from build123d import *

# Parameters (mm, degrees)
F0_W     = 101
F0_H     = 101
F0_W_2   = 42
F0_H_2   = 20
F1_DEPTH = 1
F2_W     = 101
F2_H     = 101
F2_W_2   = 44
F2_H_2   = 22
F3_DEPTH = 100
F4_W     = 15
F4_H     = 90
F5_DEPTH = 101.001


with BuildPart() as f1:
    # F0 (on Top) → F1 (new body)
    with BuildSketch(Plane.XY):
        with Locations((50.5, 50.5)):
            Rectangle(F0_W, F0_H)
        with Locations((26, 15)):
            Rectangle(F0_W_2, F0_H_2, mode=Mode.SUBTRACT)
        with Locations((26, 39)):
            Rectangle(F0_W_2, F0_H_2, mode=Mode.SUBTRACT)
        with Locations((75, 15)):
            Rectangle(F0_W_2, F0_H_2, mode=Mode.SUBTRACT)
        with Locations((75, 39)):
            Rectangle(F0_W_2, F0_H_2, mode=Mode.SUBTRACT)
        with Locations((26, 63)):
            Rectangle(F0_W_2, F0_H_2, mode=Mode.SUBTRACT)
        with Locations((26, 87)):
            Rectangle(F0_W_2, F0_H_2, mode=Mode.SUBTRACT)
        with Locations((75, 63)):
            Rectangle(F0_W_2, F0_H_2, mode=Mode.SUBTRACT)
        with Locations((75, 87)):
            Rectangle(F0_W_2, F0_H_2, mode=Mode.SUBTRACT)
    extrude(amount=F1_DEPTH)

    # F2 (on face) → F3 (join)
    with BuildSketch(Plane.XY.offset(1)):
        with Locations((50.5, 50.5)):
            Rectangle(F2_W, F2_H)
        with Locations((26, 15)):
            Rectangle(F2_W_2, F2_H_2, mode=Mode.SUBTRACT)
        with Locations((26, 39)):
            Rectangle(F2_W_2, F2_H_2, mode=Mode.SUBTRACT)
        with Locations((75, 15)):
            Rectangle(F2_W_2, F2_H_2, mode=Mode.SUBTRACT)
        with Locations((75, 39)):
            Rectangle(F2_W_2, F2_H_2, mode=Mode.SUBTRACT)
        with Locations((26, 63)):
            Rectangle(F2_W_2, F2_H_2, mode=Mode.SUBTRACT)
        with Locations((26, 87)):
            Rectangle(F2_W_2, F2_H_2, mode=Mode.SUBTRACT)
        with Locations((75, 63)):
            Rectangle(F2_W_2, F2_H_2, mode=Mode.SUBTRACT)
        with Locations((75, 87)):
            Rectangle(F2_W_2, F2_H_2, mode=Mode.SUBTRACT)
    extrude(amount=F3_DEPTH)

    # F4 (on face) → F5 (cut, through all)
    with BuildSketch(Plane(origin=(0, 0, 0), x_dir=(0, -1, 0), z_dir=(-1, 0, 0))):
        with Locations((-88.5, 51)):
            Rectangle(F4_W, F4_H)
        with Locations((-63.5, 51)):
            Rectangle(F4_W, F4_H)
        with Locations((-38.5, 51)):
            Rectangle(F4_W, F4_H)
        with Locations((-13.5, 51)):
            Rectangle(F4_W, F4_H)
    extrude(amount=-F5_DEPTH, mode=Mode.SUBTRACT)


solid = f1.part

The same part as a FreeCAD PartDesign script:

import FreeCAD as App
import Part
import Sketcher
from FreeCAD import Vector


def add_polygon(sketch, points):
    """Adds a closed chain of lines whose ends are joined by coincident constraints."""
    first, n = sketch.GeometryCount, len(points)
    for a, b in zip(points, points[1:] + points[:1]):
        sketch.addGeometry(Part.LineSegment(App.Vector(*a, 0), App.Vector(*b, 0)), False)
    for i in range(n):
        sketch.addConstraint(Sketcher.Constraint("Coincident", first + i, 2, first + (i + 1) % n, 1))

doc = App.newDocument("Part")
body = doc.addObject("PartDesign::Body", "Body")

# Sketch on XY plane
sketch1 = doc.addObject("Sketcher::SketchObject", "Sketch")
body.addObject(sketch1)
sketch1.AttachmentSupport = (doc.XY_Plane, [""])
sketch1.MapMode = "FlatFace"
add_polygon(sketch1, [(0, 101), (0, 0), (101, 0), (101, 101)])  # lines 0-3
add_polygon(sketch1, [(47, 5), (5, 5), (5, 25), (47, 25)])  # lines 4-7
add_polygon(sketch1, [(47, 29), (5, 29), (5, 49), (47, 49)])  # lines 8-11
add_polygon(sketch1, [(96, 5), (54, 5), (54, 25), (96, 25)])  # lines 12-15
add_polygon(sketch1, [(96, 29), (54, 29), (54, 49), (96, 49)])  # lines 16-19
add_polygon(sketch1, [(47, 53), (5, 53), (5, 73), (47, 73)])  # lines 20-23
add_polygon(sketch1, [(47, 77), (5, 77), (5, 97), (47, 97)])  # lines 24-27
add_polygon(sketch1, [(96, 53), (54, 53), (54, 73), (96, 73)])  # lines 28-31
add_polygon(sketch1, [(96, 77), (54, 77), (54, 97), (96, 97)])  # lines 32-35
sketch1.addConstraint(Sketcher.Constraint("Vertical", 0))
sketch1.addConstraint(Sketcher.Constraint("Horizontal", 1))
sketch1.addConstraint(Sketcher.Constraint("Vertical", 2))
sketch1.addConstraint(Sketcher.Constraint("Horizontal", 3))
sketch1.addConstraint(Sketcher.Constraint("Horizontal", 4))
sketch1.addConstraint(Sketcher.Constraint("Vertical", 5))
sketch1.addConstraint(Sketcher.Constraint("Horizontal", 6))
sketch1.addConstraint(Sketcher.Constraint("Vertical", 7))
sketch1.addConstraint(Sketcher.Constraint("Horizontal", 8))
sketch1.addConstraint(Sketcher.Constraint("Vertical", 9))
sketch1.addConstraint(Sketcher.Constraint("Horizontal", 10))
sketch1.addConstraint(Sketcher.Constraint("Vertical", 11))
sketch1.addConstraint(Sketcher.Constraint("Horizontal", 12))
sketch1.addConstraint(Sketcher.Constraint("Vertical", 13))
sketch1.addConstraint(Sketcher.Constraint("Horizontal", 14))
sketch1.addConstraint(Sketcher.Constraint("Vertical", 15))
sketch1.addConstraint(Sketcher.Constraint("Horizontal", 16))
sketch1.addConstraint(Sketcher.Constraint("Vertical", 17))
sketch1.addConstraint(Sketcher.Constraint("Horizontal", 18))
sketch1.addConstraint(Sketcher.Constraint("Vertical", 19))
sketch1.addConstraint(Sketcher.Constraint("Horizontal", 20))
sketch1.addConstraint(Sketcher.Constraint("Vertical", 21))
sketch1.addConstraint(Sketcher.Constraint("Horizontal", 22))
sketch1.addConstraint(Sketcher.Constraint("Vertical", 23))
sketch1.addConstraint(Sketcher.Constraint("Horizontal", 24))
sketch1.addConstraint(Sketcher.Constraint("Vertical", 25))
sketch1.addConstraint(Sketcher.Constraint("Horizontal", 26))
sketch1.addConstraint(Sketcher.Constraint("Vertical", 27))
sketch1.addConstraint(Sketcher.Constraint("Horizontal", 28))
sketch1.addConstraint(Sketcher.Constraint("Vertical", 29))
sketch1.addConstraint(Sketcher.Constraint("Horizontal", 30))
sketch1.addConstraint(Sketcher.Constraint("Vertical", 31))
sketch1.addConstraint(Sketcher.Constraint("Horizontal", 32))
sketch1.addConstraint(Sketcher.Constraint("Vertical", 33))
sketch1.addConstraint(Sketcher.Constraint("Horizontal", 34))
sketch1.addConstraint(Sketcher.Constraint("Vertical", 35))
sketch1.addConstraint(Sketcher.Constraint("Coincident", 0, 2, -1, 1))
sketch1.addConstraint(Sketcher.Constraint("Horizontal", 7, 2, 12, 2))
sketch1.addConstraint(Sketcher.Constraint("Horizontal", 6, 2, 13, 2))
sketch1.addConstraint(Sketcher.Constraint("Horizontal", 11, 2, 16, 2))
sketch1.addConstraint(Sketcher.Constraint("Horizontal", 10, 2, 17, 2))
sketch1.addConstraint(Sketcher.Constraint("Horizontal", 23, 2, 28, 2))
sketch1.addConstraint(Sketcher.Constraint("Horizontal", 22, 2, 29, 2))
sketch1.addConstraint(Sketcher.Constraint("Horizontal", 27, 2, 32, 2))
sketch1.addConstraint(Sketcher.Constraint("Horizontal", 26, 2, 33, 2))
sketch1.addConstraint(Sketcher.Constraint("Vertical", 5, 2, 8, 2))
sketch1.addConstraint(Sketcher.Constraint("Vertical", 7, 2, 10, 2))
sketch1.addConstraint(Sketcher.Constraint("Vertical", 13, 2, 16, 2))
sketch1.addConstraint(Sketcher.Constraint("Vertical", 15, 2, 18, 2))
sketch1.addConstraint(Sketcher.Constraint("Vertical", 9, 2, 20, 2))
sketch1.addConstraint(Sketcher.Constraint("Vertical", 11, 2, 22, 2))
sketch1.addConstraint(Sketcher.Constraint("Vertical", 21, 2, 24, 2))
sketch1.addConstraint(Sketcher.Constraint("Vertical", 23, 2, 26, 2))
sketch1.addConstraint(Sketcher.Constraint("Vertical", 17, 2, 28, 2))
sketch1.addConstraint(Sketcher.Constraint("Vertical", 19, 2, 30, 2))
sketch1.addConstraint(Sketcher.Constraint("Vertical", 29, 2, 32, 2))
sketch1.addConstraint(Sketcher.Constraint("Vertical", 31, 2, 34, 2))
sketch1.addConstraint(Sketcher.Constraint("Equal", 10, 12))
sketch1.addConstraint(Sketcher.Constraint("Equal", 3, 0))
sketch1.addConstraint(Sketcher.Constraint("Equal", 7, 9))
sketch1.addConstraint(Sketcher.Constraint("Equal", 19, 21))
sketch1.addConstraint(Sketcher.Constraint("Equal", 23, 25))
sketch1.addConstraint(Sketcher.Constraint("DistanceX", 1, 1, 1, 2, 101.0))
sketch1.addConstraint(Sketcher.Constraint("DistanceX", 4, 2, 4, 1, 42.0))
sketch1.addConstraint(Sketcher.Constraint("DistanceY", 5, 1, 5, 2, 20.0))
sketch1.addConstraint(Sketcher.Constraint("DistanceX", -1, 1, 4, 2, 5.0))
sketch1.addConstraint(Sketcher.Constraint("DistanceY", -1, 1, 4, 2, 5.0))
sketch1.addConstraint(Sketcher.Constraint("DistanceY", -1, 1, 8, 2, 29.0))
sketch1.addConstraint(Sketcher.Constraint("DistanceX", -1, 1, 12, 2, 54.0))
sketch1.addConstraint(Sketcher.Constraint("DistanceY", -1, 1, 20, 2, 53.0))
sketch1.addConstraint(Sketcher.Constraint("DistanceY", -1, 1, 24, 2, 77.0))
pad1 = doc.addObject("PartDesign::Pad", "Pad")
body.addObject(pad1)
pad1.Profile = sketch1
pad1.Length = 1

# Sketch on XY plane
sketch2 = doc.addObject("Sketcher::SketchObject", "Sketch001")
body.addObject(sketch2)
sketch2.AttachmentSupport = (doc.XY_Plane, [""])
sketch2.MapMode = "FlatFace"
sketch2.AttachmentOffset = App.Placement(Vector(0, 0, 1), App.Rotation())
add_polygon(sketch2, [(0, 101), (0, 0), (101, 0), (101, 101)])  # lines 0-3
add_polygon(sketch2, [(48, 4), (4, 4), (4, 26), (48, 26)])  # lines 4-7
add_polygon(sketch2, [(48, 28), (4, 28), (4, 50), (48, 50)])  # lines 8-11
add_polygon(sketch2, [(97, 4), (53, 4), (53, 26), (97, 26)])  # lines 12-15
add_polygon(sketch2, [(97, 28), (53, 28), (53, 50), (97, 50)])  # lines 16-19
add_polygon(sketch2, [(48, 52), (4, 52), (4, 74), (48, 74)])  # lines 20-23
add_polygon(sketch2, [(48, 76), (4, 76), (4, 98), (48, 98)])  # lines 24-27
add_polygon(sketch2, [(97, 52), (53, 52), (53, 74), (97, 74)])  # lines 28-31
add_polygon(sketch2, [(97, 76), (53, 76), (53, 98), (97, 98)])  # lines 32-35
sketch2.addConstraint(Sketcher.Constraint("Vertical", 0))
sketch2.addConstraint(Sketcher.Constraint("Horizontal", 1))
sketch2.addConstraint(Sketcher.Constraint("Vertical", 2))
sketch2.addConstraint(Sketcher.Constraint("Horizontal", 3))
sketch2.addConstraint(Sketcher.Constraint("Horizontal", 4))
sketch2.addConstraint(Sketcher.Constraint("Vertical", 5))
sketch2.addConstraint(Sketcher.Constraint("Horizontal", 6))
sketch2.addConstraint(Sketcher.Constraint("Vertical", 7))
sketch2.addConstraint(Sketcher.Constraint("Horizontal", 8))
sketch2.addConstraint(Sketcher.Constraint("Vertical", 9))
sketch2.addConstraint(Sketcher.Constraint("Horizontal", 10))
sketch2.addConstraint(Sketcher.Constraint("Vertical", 11))
sketch2.addConstraint(Sketcher.Constraint("Horizontal", 12))
sketch2.addConstraint(Sketcher.Constraint("Vertical", 13))
sketch2.addConstraint(Sketcher.Constraint("Horizontal", 14))
sketch2.addConstraint(Sketcher.Constraint("Vertical", 15))
sketch2.addConstraint(Sketcher.Constraint("Horizontal", 16))
sketch2.addConstraint(Sketcher.Constraint("Vertical", 17))
sketch2.addConstraint(Sketcher.Constraint("Horizontal", 18))
sketch2.addConstraint(Sketcher.Constraint("Vertical", 19))
sketch2.addConstraint(Sketcher.Constraint("Horizontal", 20))
sketch2.addConstraint(Sketcher.Constraint("Vertical", 21))
sketch2.addConstraint(Sketcher.Constraint("Horizontal", 22))
sketch2.addConstraint(Sketcher.Constraint("Vertical", 23))
sketch2.addConstraint(Sketcher.Constraint("Horizontal", 24))
sketch2.addConstraint(Sketcher.Constraint("Vertical", 25))
sketch2.addConstraint(Sketcher.Constraint("Horizontal", 26))
sketch2.addConstraint(Sketcher.Constraint("Vertical", 27))
sketch2.addConstraint(Sketcher.Constraint("Horizontal", 28))
sketch2.addConstraint(Sketcher.Constraint("Vertical", 29))
sketch2.addConstraint(Sketcher.Constraint("Horizontal", 30))
sketch2.addConstraint(Sketcher.Constraint("Vertical", 31))
sketch2.addConstraint(Sketcher.Constraint("Horizontal", 32))
sketch2.addConstraint(Sketcher.Constraint("Vertical", 33))
sketch2.addConstraint(Sketcher.Constraint("Horizontal", 34))
sketch2.addConstraint(Sketcher.Constraint("Vertical", 35))
sketch2.addConstraint(Sketcher.Constraint("Coincident", 0, 2, -1, 1))
sketch2.addConstraint(Sketcher.Constraint("Horizontal", 7, 2, 12, 2))
sketch2.addConstraint(Sketcher.Constraint("Horizontal", 6, 2, 13, 2))
sketch2.addConstraint(Sketcher.Constraint("Horizontal", 11, 2, 16, 2))
sketch2.addConstraint(Sketcher.Constraint("Horizontal", 10, 2, 17, 2))
sketch2.addConstraint(Sketcher.Constraint("Horizontal", 23, 2, 28, 2))
sketch2.addConstraint(Sketcher.Constraint("Horizontal", 22, 2, 29, 2))
sketch2.addConstraint(Sketcher.Constraint("Horizontal", 27, 2, 32, 2))
sketch2.addConstraint(Sketcher.Constraint("Horizontal", 26, 2, 33, 2))
sketch2.addConstraint(Sketcher.Constraint("Vertical", 5, 2, 8, 2))
sketch2.addConstraint(Sketcher.Constraint("Vertical", 7, 2, 10, 2))
sketch2.addConstraint(Sketcher.Constraint("Vertical", 13, 2, 16, 2))
sketch2.addConstraint(Sketcher.Constraint("Vertical", 15, 2, 18, 2))
sketch2.addConstraint(Sketcher.Constraint("Vertical", 9, 2, 20, 2))
sketch2.addConstraint(Sketcher.Constraint("Vertical", 11, 2, 22, 2))
sketch2.addConstraint(Sketcher.Constraint("Vertical", 21, 2, 24, 2))
sketch2.addConstraint(Sketcher.Constraint("Vertical", 23, 2, 26, 2))
sketch2.addConstraint(Sketcher.Constraint("Vertical", 17, 2, 28, 2))
sketch2.addConstraint(Sketcher.Constraint("Vertical", 19, 2, 30, 2))
sketch2.addConstraint(Sketcher.Constraint("Vertical", 29, 2, 32, 2))
sketch2.addConstraint(Sketcher.Constraint("Vertical", 31, 2, 34, 2))
sketch2.addConstraint(Sketcher.Constraint("Equal", 10, 12))
sketch2.addConstraint(Sketcher.Constraint("Equal", 3, 0))
sketch2.addConstraint(Sketcher.Constraint("Equal", 7, 9))
sketch2.addConstraint(Sketcher.Constraint("Equal", 19, 21))
sketch2.addConstraint(Sketcher.Constraint("Equal", 23, 25))
sketch2.addConstraint(Sketcher.Constraint("DistanceX", 1, 1, 1, 2, 101.0))
sketch2.addConstraint(Sketcher.Constraint("DistanceX", 4, 2, 4, 1, 44.0))
sketch2.addConstraint(Sketcher.Constraint("DistanceY", 5, 1, 5, 2, 22.0))
sketch2.addConstraint(Sketcher.Constraint("DistanceX", -1, 1, 4, 2, 4.0))
sketch2.addConstraint(Sketcher.Constraint("DistanceY", -1, 1, 4, 2, 4.0))
sketch2.addConstraint(Sketcher.Constraint("DistanceY", -1, 1, 8, 2, 28.0))
sketch2.addConstraint(Sketcher.Constraint("DistanceX", -1, 1, 12, 2, 53.0))
sketch2.addConstraint(Sketcher.Constraint("DistanceY", -1, 1, 20, 2, 52.0))
sketch2.addConstraint(Sketcher.Constraint("DistanceY", -1, 1, 24, 2, 76.0))
pad2 = doc.addObject("PartDesign::Pad", "Pad001")
body.addObject(pad2)
pad2.Profile = sketch2
pad2.Length = 100

# Sketch on YZ plane
sketch3 = doc.addObject("Sketcher::SketchObject", "Sketch002")
body.addObject(sketch3)
sketch3.AttachmentSupport = (doc.YZ_Plane, [""])
sketch3.MapMode = "FlatFace"
add_polygon(sketch3, [(96, 96), (96, 6), (81, 6), (81, 96)])  # lines 0-3
add_polygon(sketch3, [(71, 96), (71, 6), (56, 6), (56, 96)])  # lines 4-7
add_polygon(sketch3, [(46, 96), (46, 6), (31, 6), (31, 96)])  # lines 8-11
add_polygon(sketch3, [(21, 96), (21, 6), (6, 6), (6, 96)])  # lines 12-15
sketch3.addConstraint(Sketcher.Constraint("Vertical", 0))
sketch3.addConstraint(Sketcher.Constraint("Horizontal", 1))
sketch3.addConstraint(Sketcher.Constraint("Vertical", 2))
sketch3.addConstraint(Sketcher.Constraint("Horizontal", 3))
sketch3.addConstraint(Sketcher.Constraint("Vertical", 4))
sketch3.addConstraint(Sketcher.Constraint("Horizontal", 5))
sketch3.addConstraint(Sketcher.Constraint("Vertical", 6))
sketch3.addConstraint(Sketcher.Constraint("Horizontal", 7))
sketch3.addConstraint(Sketcher.Constraint("Vertical", 8))
sketch3.addConstraint(Sketcher.Constraint("Horizontal", 9))
sketch3.addConstraint(Sketcher.Constraint("Vertical", 10))
sketch3.addConstraint(Sketcher.Constraint("Horizontal", 11))
sketch3.addConstraint(Sketcher.Constraint("Vertical", 12))
sketch3.addConstraint(Sketcher.Constraint("Horizontal", 13))
sketch3.addConstraint(Sketcher.Constraint("Vertical", 14))
sketch3.addConstraint(Sketcher.Constraint("Horizontal", 15))
sketch3.addConstraint(Sketcher.Constraint("Horizontal", 1, 2, 4, 2))
sketch3.addConstraint(Sketcher.Constraint("Horizontal", 3, 2, 6, 2))
sketch3.addConstraint(Sketcher.Constraint("Horizontal", 5, 2, 8, 2))
sketch3.addConstraint(Sketcher.Constraint("Horizontal", 7, 2, 10, 2))
sketch3.addConstraint(Sketcher.Constraint("Horizontal", 9, 2, 12, 2))
sketch3.addConstraint(Sketcher.Constraint("Horizontal", 11, 2, 14, 2))
sketch3.addConstraint(Sketcher.Constraint("Equal", 3, 5))
sketch3.addConstraint(Sketcher.Constraint("Equal", 7, 9))
sketch3.addConstraint(Sketcher.Constraint("Equal", 11, 13))
sketch3.addConstraint(Sketcher.Constraint("DistanceX", 1, 2, 1, 1, 15.0))
sketch3.addConstraint(Sketcher.Constraint("DistanceY", 0, 2, 0, 1, 90.0))
sketch3.addConstraint(Sketcher.Constraint("DistanceX", -1, 1, 0, 2, 96.0))
sketch3.addConstraint(Sketcher.Constraint("DistanceY", -1, 1, 0, 2, 6.0))
sketch3.addConstraint(Sketcher.Constraint("DistanceX", -1, 1, 4, 2, 71.0))
sketch3.addConstraint(Sketcher.Constraint("DistanceX", -1, 1, 8, 2, 46.0))
sketch3.addConstraint(Sketcher.Constraint("DistanceX", -1, 1, 12, 2, 21.0))
pocket1 = doc.addObject("PartDesign::Pocket", "Pocket")
body.addObject(pocket1)
pocket1.Profile = sketch3
pocket1.Type = "ThroughAll"
pocket1.Reversed = True

doc.recompute()
